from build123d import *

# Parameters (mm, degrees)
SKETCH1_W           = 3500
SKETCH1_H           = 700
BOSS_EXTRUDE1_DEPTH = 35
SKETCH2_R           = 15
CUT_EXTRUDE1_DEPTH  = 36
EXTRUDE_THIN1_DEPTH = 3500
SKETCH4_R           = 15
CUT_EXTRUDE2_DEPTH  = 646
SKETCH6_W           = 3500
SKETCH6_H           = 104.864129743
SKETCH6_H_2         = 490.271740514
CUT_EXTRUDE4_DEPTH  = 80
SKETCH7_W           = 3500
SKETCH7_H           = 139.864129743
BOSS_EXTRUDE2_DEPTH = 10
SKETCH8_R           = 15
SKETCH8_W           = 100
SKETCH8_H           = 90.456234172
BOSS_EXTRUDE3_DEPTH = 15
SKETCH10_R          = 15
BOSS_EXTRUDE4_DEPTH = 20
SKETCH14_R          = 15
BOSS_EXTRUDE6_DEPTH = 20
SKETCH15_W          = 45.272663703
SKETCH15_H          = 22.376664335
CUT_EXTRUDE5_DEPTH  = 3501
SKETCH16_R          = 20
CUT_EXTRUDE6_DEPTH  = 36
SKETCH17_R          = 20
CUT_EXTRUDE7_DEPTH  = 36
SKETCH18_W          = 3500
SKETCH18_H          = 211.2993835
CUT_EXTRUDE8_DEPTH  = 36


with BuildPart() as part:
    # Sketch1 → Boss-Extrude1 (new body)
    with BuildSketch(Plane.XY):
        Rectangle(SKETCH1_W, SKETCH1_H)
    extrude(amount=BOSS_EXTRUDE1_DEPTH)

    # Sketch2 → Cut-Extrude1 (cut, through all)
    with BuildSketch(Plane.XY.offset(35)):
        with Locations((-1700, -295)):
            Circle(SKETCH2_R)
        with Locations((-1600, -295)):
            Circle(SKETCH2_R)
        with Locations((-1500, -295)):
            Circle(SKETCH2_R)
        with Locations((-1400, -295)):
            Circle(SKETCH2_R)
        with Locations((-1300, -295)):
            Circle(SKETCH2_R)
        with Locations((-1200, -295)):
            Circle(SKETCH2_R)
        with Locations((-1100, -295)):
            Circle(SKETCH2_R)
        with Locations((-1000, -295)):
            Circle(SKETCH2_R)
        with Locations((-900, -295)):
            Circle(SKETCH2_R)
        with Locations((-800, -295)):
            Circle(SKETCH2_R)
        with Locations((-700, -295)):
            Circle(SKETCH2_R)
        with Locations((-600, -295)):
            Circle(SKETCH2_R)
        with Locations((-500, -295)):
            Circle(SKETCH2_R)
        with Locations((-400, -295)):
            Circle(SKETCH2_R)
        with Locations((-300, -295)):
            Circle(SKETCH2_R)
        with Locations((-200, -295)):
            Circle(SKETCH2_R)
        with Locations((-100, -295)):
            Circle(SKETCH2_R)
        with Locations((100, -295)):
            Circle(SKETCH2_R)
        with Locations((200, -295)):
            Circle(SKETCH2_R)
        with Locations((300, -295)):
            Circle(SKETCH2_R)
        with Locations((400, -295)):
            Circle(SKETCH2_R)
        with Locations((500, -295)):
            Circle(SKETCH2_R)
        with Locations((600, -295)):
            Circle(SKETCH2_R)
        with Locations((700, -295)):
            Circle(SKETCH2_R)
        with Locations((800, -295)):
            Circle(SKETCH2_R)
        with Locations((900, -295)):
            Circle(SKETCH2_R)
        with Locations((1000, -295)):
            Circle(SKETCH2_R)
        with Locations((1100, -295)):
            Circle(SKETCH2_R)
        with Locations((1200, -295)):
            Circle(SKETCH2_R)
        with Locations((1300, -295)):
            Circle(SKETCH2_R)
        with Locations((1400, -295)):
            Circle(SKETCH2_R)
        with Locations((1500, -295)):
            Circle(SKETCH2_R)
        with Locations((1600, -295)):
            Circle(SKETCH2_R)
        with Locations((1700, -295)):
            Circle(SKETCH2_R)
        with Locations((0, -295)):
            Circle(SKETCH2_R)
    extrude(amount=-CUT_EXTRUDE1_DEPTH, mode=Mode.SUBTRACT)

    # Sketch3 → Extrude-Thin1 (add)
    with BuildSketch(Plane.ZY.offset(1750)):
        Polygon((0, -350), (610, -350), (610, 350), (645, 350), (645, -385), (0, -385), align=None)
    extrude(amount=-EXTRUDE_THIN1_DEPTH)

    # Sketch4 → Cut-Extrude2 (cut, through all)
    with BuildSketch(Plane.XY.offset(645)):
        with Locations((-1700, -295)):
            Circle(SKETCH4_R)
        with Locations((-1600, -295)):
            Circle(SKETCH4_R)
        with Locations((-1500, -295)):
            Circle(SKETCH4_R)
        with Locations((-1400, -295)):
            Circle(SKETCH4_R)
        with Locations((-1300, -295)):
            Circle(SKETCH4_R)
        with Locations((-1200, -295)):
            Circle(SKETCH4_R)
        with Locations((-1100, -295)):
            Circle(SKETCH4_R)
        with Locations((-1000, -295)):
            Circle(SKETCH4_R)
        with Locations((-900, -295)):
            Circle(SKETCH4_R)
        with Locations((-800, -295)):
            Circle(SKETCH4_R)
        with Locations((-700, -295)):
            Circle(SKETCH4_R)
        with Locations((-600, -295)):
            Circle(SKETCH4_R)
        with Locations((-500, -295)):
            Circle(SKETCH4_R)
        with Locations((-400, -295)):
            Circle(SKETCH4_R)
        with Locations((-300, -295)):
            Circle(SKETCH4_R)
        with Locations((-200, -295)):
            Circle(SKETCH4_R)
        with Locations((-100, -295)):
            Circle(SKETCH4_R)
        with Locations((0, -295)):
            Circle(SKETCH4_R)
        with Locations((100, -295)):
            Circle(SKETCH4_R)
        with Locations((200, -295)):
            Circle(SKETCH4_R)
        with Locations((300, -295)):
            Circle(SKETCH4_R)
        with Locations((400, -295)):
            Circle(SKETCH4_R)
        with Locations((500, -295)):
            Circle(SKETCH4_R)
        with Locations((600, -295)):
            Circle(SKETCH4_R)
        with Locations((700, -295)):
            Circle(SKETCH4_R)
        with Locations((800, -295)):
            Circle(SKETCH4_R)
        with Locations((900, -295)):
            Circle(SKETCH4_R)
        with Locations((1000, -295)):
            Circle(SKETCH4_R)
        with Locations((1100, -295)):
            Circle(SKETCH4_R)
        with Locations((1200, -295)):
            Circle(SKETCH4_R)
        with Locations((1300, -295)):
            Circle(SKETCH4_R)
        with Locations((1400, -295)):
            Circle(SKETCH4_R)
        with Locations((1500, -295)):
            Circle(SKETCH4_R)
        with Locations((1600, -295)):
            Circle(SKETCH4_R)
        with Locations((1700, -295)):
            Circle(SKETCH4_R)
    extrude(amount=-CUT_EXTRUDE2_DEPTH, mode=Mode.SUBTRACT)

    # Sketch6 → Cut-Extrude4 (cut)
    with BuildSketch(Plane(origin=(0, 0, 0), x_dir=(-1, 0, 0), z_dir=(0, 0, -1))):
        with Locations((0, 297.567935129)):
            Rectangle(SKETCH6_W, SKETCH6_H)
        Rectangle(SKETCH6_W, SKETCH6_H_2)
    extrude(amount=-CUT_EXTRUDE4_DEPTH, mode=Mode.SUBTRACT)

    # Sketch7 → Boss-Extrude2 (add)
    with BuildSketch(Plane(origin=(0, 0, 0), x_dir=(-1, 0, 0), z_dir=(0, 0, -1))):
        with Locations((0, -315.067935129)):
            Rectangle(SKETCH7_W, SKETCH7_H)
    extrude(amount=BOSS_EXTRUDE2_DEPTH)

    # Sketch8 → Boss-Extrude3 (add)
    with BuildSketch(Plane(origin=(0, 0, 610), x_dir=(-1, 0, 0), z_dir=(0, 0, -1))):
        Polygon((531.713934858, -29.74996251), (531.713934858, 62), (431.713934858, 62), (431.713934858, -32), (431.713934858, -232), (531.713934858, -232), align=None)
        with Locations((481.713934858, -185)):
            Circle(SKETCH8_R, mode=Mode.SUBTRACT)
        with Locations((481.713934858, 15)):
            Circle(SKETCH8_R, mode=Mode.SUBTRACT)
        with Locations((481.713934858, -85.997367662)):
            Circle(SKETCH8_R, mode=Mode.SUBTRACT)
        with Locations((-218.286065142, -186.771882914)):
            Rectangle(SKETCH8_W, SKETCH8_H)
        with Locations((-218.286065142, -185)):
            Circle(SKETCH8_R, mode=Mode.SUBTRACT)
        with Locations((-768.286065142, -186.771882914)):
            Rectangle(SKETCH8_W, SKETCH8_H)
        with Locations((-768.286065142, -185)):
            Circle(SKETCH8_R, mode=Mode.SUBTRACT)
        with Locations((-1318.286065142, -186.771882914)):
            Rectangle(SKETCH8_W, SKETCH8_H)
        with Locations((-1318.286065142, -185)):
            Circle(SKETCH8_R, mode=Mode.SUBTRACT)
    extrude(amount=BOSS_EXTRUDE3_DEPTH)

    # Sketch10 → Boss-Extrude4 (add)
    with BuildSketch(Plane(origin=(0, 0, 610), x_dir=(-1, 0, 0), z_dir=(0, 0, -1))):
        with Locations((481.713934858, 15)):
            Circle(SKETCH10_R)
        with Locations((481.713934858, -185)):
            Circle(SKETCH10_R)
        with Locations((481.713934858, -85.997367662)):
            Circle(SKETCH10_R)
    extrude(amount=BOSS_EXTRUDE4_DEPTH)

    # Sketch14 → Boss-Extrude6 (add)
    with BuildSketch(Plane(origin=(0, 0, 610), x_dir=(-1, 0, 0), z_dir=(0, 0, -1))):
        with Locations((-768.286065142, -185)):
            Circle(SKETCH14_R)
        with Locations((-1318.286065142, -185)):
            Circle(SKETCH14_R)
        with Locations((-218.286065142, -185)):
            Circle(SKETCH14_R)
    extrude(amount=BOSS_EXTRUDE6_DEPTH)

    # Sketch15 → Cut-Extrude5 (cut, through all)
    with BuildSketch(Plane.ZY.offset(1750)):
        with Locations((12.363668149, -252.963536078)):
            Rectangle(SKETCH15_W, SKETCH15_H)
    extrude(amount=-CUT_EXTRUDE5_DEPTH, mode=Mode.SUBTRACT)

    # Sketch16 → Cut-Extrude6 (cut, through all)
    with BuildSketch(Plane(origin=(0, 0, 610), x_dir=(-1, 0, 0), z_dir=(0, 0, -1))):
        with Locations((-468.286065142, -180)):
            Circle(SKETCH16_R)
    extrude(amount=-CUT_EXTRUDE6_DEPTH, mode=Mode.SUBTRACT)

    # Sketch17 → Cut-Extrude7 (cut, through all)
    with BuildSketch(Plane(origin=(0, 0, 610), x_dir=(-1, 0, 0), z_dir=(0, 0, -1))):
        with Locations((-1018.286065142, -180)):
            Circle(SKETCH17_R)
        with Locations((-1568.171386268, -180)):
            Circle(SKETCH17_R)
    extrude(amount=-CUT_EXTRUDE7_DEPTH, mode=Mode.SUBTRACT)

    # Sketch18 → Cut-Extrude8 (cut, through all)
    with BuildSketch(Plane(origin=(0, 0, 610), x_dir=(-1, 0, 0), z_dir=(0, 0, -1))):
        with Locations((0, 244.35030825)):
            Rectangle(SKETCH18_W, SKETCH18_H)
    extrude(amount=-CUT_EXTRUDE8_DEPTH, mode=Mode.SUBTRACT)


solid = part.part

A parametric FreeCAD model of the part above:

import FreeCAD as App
import Part
import Sketcher
from FreeCAD import Vector


def add_polygon(sketch, points):
    """Adds a closed chain of lines whose ends are joined by coincident constraints."""
    first, n = sketch.GeometryCount, len(points)
    for a, b in zip(points, points[1:] + points[:1]):
        sketch.addGeometry(Part.LineSegment(App.Vector(*a, 0), App.Vector(*b, 0)), False)
    for i in range(n):
        sketch.addConstraint(Sketcher.Constraint("Coincident", first + i, 2, first + (i + 1) % n, 1))

doc = App.newDocument("Part")
body = doc.addObject("PartDesign::Body", "Body")

# Sketch on XY plane
sketch1 = body.newObject("Sketcher::SketchObject", "Sketch")
sketch1.AttachmentSupport = (doc.getObject("XY_Plane"), [""])
sketch1.MapMode = "FlatFace"
add_polygon(sketch1, [(-1750, 350), (-1750, -350), (1750, -350), (1750, 350)])  # lines 0-3
sketch1.addConstraint([
    Sketcher.Constraint("Vertical", 0),
    Sketcher.Constraint("Horizontal", 1),
    Sketcher.Constraint("Vertical", 2),
    Sketcher.Constraint("Horizontal", 3),
    Sketcher.Constraint("Symmetric", 0, 2, 2, 2, -1, 1),
    Sketcher.Constraint("DistanceX", 1, 1, 1, 2, 3500.0),
    Sketcher.Constraint("DistanceY", 0, 2, 0, 1, 700.0),
])
pad1 = body.newObject("PartDesign::Pad", "Pad")
pad1.Profile = sketch1
pad1.Length = 35

# Sketch on XY plane
sketch2 = body.newObject("Sketcher::SketchObject", "Sketch001")
sketch2.AttachmentSupport = (doc.getObject("XY_Plane"), [""])
sketch2.MapMode = "FlatFace"
sketch2.AttachmentOffset = App.Placement(Vector(0, 0, 35), App.Rotation())
sketch2.addGeometry([
    Part.Circle(Vector(-1700, -295, 0), Vector(0, 0, 1), 15),  # 0
    Part.Circle(Vector(-1600, -295, 0), Vector(0, 0, 1), 15),  # 1
    Part.Circle(Vector(-1500, -295, 0), Vector(0, 0, 1), 15),  # 2
    Part.Circle(Vector(-1400, -295, 0), Vector(0, 0, 1), 15),  # 3
    Part.Circle(Vector(-1300, -295, 0), Vector(0, 0, 1), 15),  # 4
    Part.Circle(Vector(-1200, -295, 0), Vector(0, 0, 1), 15),  # 5
    Part.Circle(Vector(-1100, -295, 0), Vector(0, 0, 1), 15),  # 6
    Part.Circle(Vector(-1000, -295, 0), Vector(0, 0, 1), 15),  # 7
    Part.Circle(Vector(-900, -295, 0), Vector(0, 0, 1), 15),  # 8
    Part.Circle(Vector(-800, -295, 0), Vector(0, 0, 1), 15),  # 9
    Part.Circle(Vector(-700, -295, 0), Vector(0, 0, 1), 15),  # 10
    Part.Circle(Vector(-600, -295, 0), Vector(0, 0, 1), 15),  # 11
    Part.Circle(Vector(-500, -295, 0), Vector(0, 0, 1), 15),  # 12
    Part.Circle(Vector(-400, -295, 0), Vector(0, 0, 1), 15),  # 13
    Part.Circle(Vector(-300, -295, 0), Vector(0, 0, 1), 15),  # 14
    Part.Circle(Vector(-200, -295, 0), Vector(0, 0, 1), 15),  # 15
    Part.Circle(Vector(-100, -295, 0), Vector(0, 0, 1), 15),  # 16
    Part.Circle(Vector(100, -295, 0), Vector(0, 0, 1), 15),  # 17
    Part.Circle(Vector(200, -295, 0), Vector(0, 0, 1), 15),  # 18
    Part.Circle(Vector(300, -295, 0), Vector(0, 0, 1), 15),  # 19
    Part.Circle(Vector(400, -295, 0), Vector(0, 0, 1), 15),  # 20
    Part.Circle(Vector(500, -295, 0), Vector(0, 0, 1), 15),  # 21
    Part.Circle(Vector(600, -295, 0), Vector(0, 0, 1), 15),  # 22
    Part.Circle(Vector(700, -295, 0), Vector(0, 0, 1), 15),  # 23
    Part.Circle(Vector(800, -295, 0), Vector(0, 0, 1), 15),  # 24
    Part.Circle(Vector(900, -295, 0), Vector(0, 0, 1), 15),  # 25
    Part.Circle(Vector(1000, -295, 0), Vector(0, 0, 1), 15),  # 26
    Part.Circle(Vector(1100, -295, 0), Vector(0, 0, 1), 15),  # 27
    Part.Circle(Vector(1200, -295, 0), Vector(0, 0, 1), 15),  # 28
    Part.Circle(Vector(1300, -295, 0), Vector(0, 0, 1), 15),  # 29
    Part.Circle(Vector(1400, -295, 0), Vector(0, 0, 1), 15),  # 30
    Part.Circle(Vector(1500, -295, 0), Vector(0, 0, 1), 15),  # 31
    Part.Circle(Vector(1600, -295, 0), Vector(0, 0, 1), 15),  # 32
    Part.Circle(Vector(1700, -295, 0), Vector(0, 0, 1), 15),  # 33
    Part.Circle(Vector(0, -295, 0), Vector(0, 0, 1), 15),  # 34
], False)
sketch2.addConstraint([
    Sketcher.Constraint("Equal", 0, 1),
    Sketcher.Constraint("Equal", 1, 2),
    Sketcher.Constraint("Equal", 2, 3),
    Sketcher.Constraint("Equal", 3, 4),
    Sketcher.Constraint("Equal", 4, 5),
    Sketcher.Constraint("Equal", 5, 6),
    Sketcher.Constraint("Equal", 6, 7),
    Sketcher.Constraint("Equal", 7, 8),
    Sketcher.Constraint("Equal", 8, 9),
    Sketcher.Constraint("Equal", 9, 10),
    Sketcher.Constraint("Equal", 10, 11),
    Sketcher.Constraint("Equal", 11, 12),
    Sketcher.Constraint("Equal", 12, 13),
    Sketcher.Constraint("Equal", 13, 14),
    Sketcher.Constraint("Equal", 14, 15),
    Sketcher.Constraint("Equal", 15, 16),
    Sketcher.Constraint("Equal", 16, 17),
    Sketcher.Constraint("Equal", 17, 18),
    Sketcher.Constraint("Equal", 18, 19),
    Sketcher.Constraint("Equal", 19, 20),
    Sketcher.Constraint("Equal", 20, 21),
    Sketcher.Constraint("Equal", 21, 22),
    Sketcher.Constraint("Equal", 22, 23),
    Sketcher.Constraint("Equal", 23, 24),
    Sketcher.Constraint("Equal", 24, 25),
    Sketcher.Constraint("Equal", 25, 26),
    Sketcher.Constraint("Equal", 26, 27),
    Sketcher.Constraint("Equal", 27, 28),
    Sketcher.Constraint("Equal", 28, 29),
    Sketcher.Constraint("Equal", 29, 30),
    Sketcher.Constraint("Equal", 30, 31),
    Sketcher.Constraint("Equal", 31, 32),
    Sketcher.Constraint("Equal", 32, 33),
    Sketcher.Constraint("Equal", 33, 34),
    Sketcher.Constraint("Symmetric", 16, 3, 17, 3, -2),
    Sketcher.Constraint("Symmetric", 15, 3, 18, 3, -2),
    Sketcher.Constraint("Symmetric", 14, 3, 19, 3, -2),
    Sketcher.Constraint("Symmetric", 13, 3, 20, 3, -2),
    Sketcher.Constraint("Symmetric", 12, 3, 21, 3, -2),
    Sketcher.Constraint("Symmetric", 11, 3, 22, 3, -2),
    Sketcher.Constraint("Symmetric", 10, 3, 23, 3, -2),
    Sketcher.Constraint("Symmetric", 9, 3, 24, 3, -2),
    Sketcher.Constraint("Symmetric", 8, 3, 25, 3, -2),
    Sketcher.Constraint("Symmetric", 7, 3, 26, 3, -2),
    Sketcher.Constraint("Symmetric", 6, 3, 27, 3, -2),
    Sketcher.Constraint("Symmetric", 5, 3, 28, 3, -2),
    Sketcher.Constraint("Symmetric", 4, 3, 29, 3, -2),
    Sketcher.Constraint("Symmetric", 3, 3, 30, 3, -2),
    Sketcher.Constraint("Symmetric", 2, 3, 31, 3, -2),
    Sketcher.Constraint("Symmetric", 1, 3, 32, 3, -2),
    Sketcher.Constraint("Symmetric", 0, 3, 33, 3, -2),
    Sketcher.Constraint("PointOnObject", 34, 3, -2),
    Sketcher.Constraint("Horizontal", 0, 3, 1, 3),
    Sketcher.Constraint("Horizontal", 1, 3, 2, 3),
    Sketcher.Constraint("Horizontal", 2, 3, 3, 3),
    Sketcher.Constraint("Horizontal", 3, 3, 4, 3),
    Sketcher.Constraint("Horizontal", 4, 3, 5, 3),
    Sketcher.Constraint("Horizontal", 5, 3, 6, 3),
    Sketcher.Constraint("Horizontal", 6, 3, 7, 3),
    Sketcher.Constraint("Horizontal", 7, 3, 8, 3),
    Sketcher.Constraint("Horizontal", 8, 3, 9, 3),
    Sketcher.Constraint("Horizontal", 9, 3, 10, 3),
    Sketcher.Constraint("Horizontal", 10, 3, 11, 3),
    Sketcher.Constraint("Horizontal", 11, 3, 12, 3),
    Sketcher.Constraint("Horizontal", 12, 3, 13, 3),
    Sketcher.Constraint("Horizontal", 13, 3, 14, 3),
    Sketcher.Constraint("Horizontal", 14, 3, 15, 3),
    Sketcher.Constraint("Horizontal", 15, 3, 16, 3),
    Sketcher.Constraint("Horizontal", 33, 3, 34, 3),
    Sketcher.Constraint("Diameter", 0, 30.0),
    Sketcher.Constraint("DistanceX", 0, 3, -1, 1, 1700.0),
    Sketcher.Constraint("DistanceY", 0, 3, -1, 1, 295.0),
    Sketcher.Constraint("DistanceX", 1, 3, -1, 1, 1600.0),
    Sketcher.Constraint("DistanceX", 2, 3, -1, 1, 1500.0),
    Sketcher.Constraint("DistanceX", 3, 3, -1, 1, 1400.0),
    Sketcher.Constraint("DistanceX", 4, 3, -1, 1, 1300.0),
    Sketcher.Constraint("DistanceX", 5, 3, -1, 1, 1200.0),
    Sketcher.Constraint("DistanceX", 6, 3, -1, 1, 1100.0),
    Sketcher.Constraint("DistanceX", 7, 3, -1, 1, 1000.0),
    Sketcher.Constraint("DistanceX", 8, 3, -1, 1, 900.0),
    Sketcher.Constraint("DistanceX", 9, 3, -1, 1, 800.0),
    Sketcher.Constraint("DistanceX", 10, 3, -1, 1, 700.0),
    Sketcher.Constraint("DistanceX", 11, 3, -1, 1, 600.0),
    Sketcher.Constraint("DistanceX", 12, 3, -1, 1, 500.0),
    Sketcher.Constraint("DistanceX", 13, 3, -1, 1, 400.0),
    Sketcher.Constraint("DistanceX", 14, 3, -1, 1, 300.0),
    Sketcher.Constraint("DistanceX", 15, 3, -1, 1, 200.0),
    Sketcher.Constraint("DistanceX", 16, 3, -1, 1, 100.0),
])
pocket1 = body.newObject("PartDesign::Pocket", "Pocket")
pocket1.Profile = sketch2
pocket1.Type = "ThroughAll"

# Sketch on YZ plane
sketch3 = body.newObject("Sketcher::SketchObject", "Sketch002")
sketch3.AttachmentSupport = (doc.getObject("YZ_Plane"), [""])
sketch3.MapMode = "FlatFace"
sketch3.AttachmentOffset = App.Placement(Vector(0, 0, -1750), App.Rotation())
add_polygon(sketch3, [(-350, 610), (-350, 0), (-385, 0), (-385, 645), (350, 645), (350, 610)])  # lines 0-5
sketch3.addConstraint([
    Sketcher.Constraint("Vertical", 0),
    Sketcher.Constraint("Horizontal", 1),
    Sketcher.Constraint("Vertical", 2),
    Sketcher.Constraint("Horizontal", 3),
    Sketcher.Constraint("Vertical", 4),
    Sketcher.Constraint("Horizontal", 5),
    Sketcher.Constraint("PointOnObject", 0, 2, -1),
    Sketcher.Constraint("Equal", 1, 4),
    Sketcher.Constraint("DistanceX", 1, 2, 1, 1, 35.0),
    Sketcher.Constraint("DistanceX", 3, 1, 3, 2, 735.0),
    Sketcher.Constraint("DistanceY", 0, 2, 0, 1, 610.0),
    Sketcher.Constraint("DistanceX", 0, 2, -1, 1, 350.0),
])
pad2 = body.newObject("PartDesign::Pad", "Pad001")
pad2.Profile = sketch3
pad2.Length = 3500

# Sketch on XY plane
sketch4 = body.newObject("Sketcher::SketchObject", "Sketch003")
sketch4.AttachmentSupport = (doc.getObject("XY_Plane"), [""])
sketch4.MapMode = "FlatFace"
sketch4.AttachmentOffset = App.Placement(Vector(0, 0, 645), App.Rotation())
sketch4.addGeometry([
    Part.Circle(Vector(-1700, -295, 0), Vector(0, 0, 1), 15),  # 0
    Part.Circle(Vector(-1600, -295, 0), Vector(0, 0, 1), 15),  # 1
    Part.Circle(Vector(-1500, -295, 0), Vector(0, 0, 1), 15),  # 2
    Part.Circle(Vector(-1400, -295, 0), Vector(0, 0, 1), 15),  # 3
    Part.Circle(Vector(-1300, -295, 0), Vector(0, 0, 1), 15),  # 4
    Part.Circle(Vector(-1200, -295, 0), Vector(0, 0, 1), 15),  # 5
    Part.Circle(Vector(-1100, -295, 0), Vector(0, 0, 1), 15),  # 6
    Part.Circle(Vector(-1000, -295, 0), Vector(0, 0, 1), 15),  # 7
    Part.Circle(Vector(-900, -295, 0), Vector(0, 0, 1), 15),  # 8
    Part.Circle(Vector(-800, -295, 0), Vector(0, 0, 1), 15),  # 9
    Part.Circle(Vector(-700, -295, 0), Vector(0, 0, 1), 15),  # 10
    Part.Circle(Vector(-600, -295, 0), Vector(0, 0, 1), 15),  # 11
    Part.Circle(Vector(-500, -295, 0), Vector(0, 0, 1), 15),  # 12
    Part.Circle(Vector(-400, -295, 0), Vector(0, 0, 1), 15),  # 13
    Part.Circle(Vector(-300, -295, 0), Vector(0, 0, 1), 15),  # 14
    Part.Circle(Vector(-200, -295, 0), Vector(0, 0, 1), 15),  # 15
    Part.Circle(Vector(-100, -295, 0), Vector(0, 0, 1), 15),  # 16
    Part.Circle(Vector(0, -295, 0), Vector(0, 0, 1), 15),  # 17
    Part.Circle(Vector(100, -295, 0), Vector(0, 0, 1), 15),  # 18
    Part.Circle(Vector(200, -295, 0), Vector(0, 0, 1), 15),  # 19
    Part.Circle(Vector(300, -295, 0), Vector(0, 0, 1), 15),  # 20
    Part.Circle(Vector(400, -295, 0), Vector(0, 0, 1), 15),  # 21
    Part.Circle(Vector(500, -295, 0), Vector(0, 0, 1), 15),  # 22
    Part.Circle(Vector(600, -295, 0), Vector(0, 0, 1), 15),  # 23
    Part.Circle(Vector(700, -295, 0), Vector(0, 0, 1), 15),  # 24
    Part.Circle(Vector(800, -295, 0), Vector(0, 0, 1), 15),  # 25
    Part.Circle(Vector(900, -295, 0), Vector(0, 0, 1), 15),  # 26
    Part.Circle(Vector(1000, -295, 0), Vector(0, 0, 1), 15),  # 27
    Part.Circle(Vector(1100, -295, 0), Vector(0, 0, 1), 15),  # 28
    Part.Circle(Vector(1200, -295, 0), Vector(0, 0, 1), 15),  # 29
    Part.Circle(Vector(1300, -295, 0), Vector(0, 0, 1), 15),  # 30
    Part.Circle(Vector(1400, -295, 0), Vector(0, 0, 1), 15),  # 31
    Part.Circle(Vector(1500, -295, 0), Vector(0, 0, 1), 15),  # 32
    Part.Circle(Vector(1600, -295, 0), Vector(0, 0, 1), 15),  # 33
    Part.Circle(Vector(1700, -295, 0), Vector(0, 0, 1), 15),  # 34
], False)
sketch4.addConstraint([
    Sketcher.Constraint("Equal", 0, 1),
    Sketcher.Constraint("Equal", 1, 2),
    Sketcher.Constraint("Equal", 2, 3),
    Sketcher.Constraint("Equal", 3, 4),
    Sketcher.Constraint("Equal", 4, 5),
    Sketcher.Constraint("Equal", 5, 6),
    Sketcher.Constraint("Equal", 6, 7),
    Sketcher.Constraint("Equal", 7, 8),
    Sketcher.Constraint("Equal", 8, 9),
    Sketcher.Constraint("Equal", 9, 10),
    Sketcher.Constraint("Equal", 10, 11),
    Sketcher.Constraint("Equal", 11, 12),
    Sketcher.Constraint("Equal", 12, 13),
    Sketcher.Constraint("Equal", 13, 14),
    Sketcher.Constraint("Equal", 14, 15),
    Sketcher.Constraint("Equal", 15, 16),
    Sketcher.Constraint("Equal", 16, 17),
    Sketcher.Constraint("Equal", 17, 18),
    Sketcher.Constraint("Equal", 18, 19),
    Sketcher.Constraint("Equal", 19, 20),
    Sketcher.Constraint("Equal", 20, 21),
    Sketcher.Constraint("Equal", 21, 22),
    Sketcher.Constraint("Equal", 22, 23),
    Sketcher.Constraint("Equal", 23, 24),
    Sketcher.Constraint("Equal", 24, 25),
    Sketcher.Constraint("Equal", 25, 26),
    Sketcher.Constraint("Equal", 26, 27),
    Sketcher.Constraint("Equal", 27, 28),
    Sketcher.Constraint("Equal", 28, 29),
    Sketcher.Constraint("Equal", 29, 30),
    Sketcher.Constraint("Equal", 30, 31),
    Sketcher.Constraint("Equal", 31, 32),
    Sketcher.Constraint("Equal", 32, 33),
    Sketcher.Constraint("Equal", 33, 34),
    Sketcher.Constraint("Symmetric", 16, 3, 18, 3, -2),
    Sketcher.Constraint("Symmetric", 15, 3, 19, 3, -2),
    Sketcher.Constraint("Symmetric", 14, 3, 20, 3, -2),
    Sketcher.Constraint("Symmetric", 13, 3, 21, 3, -2),
    Sketcher.Constraint("Symmetric", 12, 3, 22, 3, -2),
    Sketcher.Constraint("Symmetric", 11, 3, 23, 3, -2),
    Sketcher.Constraint("Symmetric", 10, 3, 24, 3, -2),
    Sketcher.Constraint("Symmetric", 9, 3, 25, 3, -2),
    Sketcher.Constraint("Symmetric", 8, 3, 26, 3, -2),
    Sketcher.Constraint("Symmetric", 7, 3, 27, 3, -2),
    Sketcher.Constraint("Symmetric", 6, 3, 28, 3, -2),
    Sketcher.Constraint("Symmetric", 5, 3, 29, 3, -2),
    Sketcher.Constraint("Symmetric", 4, 3, 30, 3, -2),
    Sketcher.Constraint("Symmetric", 3, 3, 31, 3, -2),
    Sketcher.Constraint("Symmetric", 2, 3, 32, 3, -2),
    Sketcher.Constraint("Symmetric", 1, 3, 33, 3, -2),
    Sketcher.Constraint("Symmetric", 0, 3, 34, 3, -2),
    Sketcher.Constraint("PointOnObject", 17, 3, -2),
    Sketcher.Constraint("Horizontal", 0, 3, 1, 3),
    Sketcher.Constraint("Horizontal", 1, 3, 2, 3),
    Sketcher.Constraint("Horizontal", 2, 3, 3, 3),
    Sketcher.Constraint("Horizontal", 3, 3, 4, 3),
    Sketcher.Constraint("Horizontal", 4, 3, 5, 3),
    Sketcher.Constraint("Horizontal", 5, 3, 6, 3),
    Sketcher.Constraint("Horizontal", 6, 3, 7, 3),
    Sketcher.Constraint("Horizontal", 7, 3, 8, 3),
    Sketcher.Constraint("Horizontal", 8, 3, 9, 3),
    Sketcher.Constraint("Horizontal", 9, 3, 10, 3),
    Sketcher.Constraint("Horizontal", 10, 3, 11, 3),
    Sketcher.Constraint("Horizontal", 11, 3, 12, 3),
    Sketcher.Constraint("Horizontal", 12, 3, 13, 3),
    Sketcher.Constraint("Horizontal", 13, 3, 14, 3),
    Sketcher.Constraint("Horizontal", 14, 3, 15, 3),
    Sketcher.Constraint("Horizontal", 15, 3, 16, 3),
    Sketcher.Constraint("Horizontal", 16, 3, 17, 3),
    Sketcher.Constraint("Diameter", 0, 30.0),
    Sketcher.Constraint("DistanceX", 0, 3, -1, 1, 1700.0),
    Sketcher.Constraint("DistanceY", 0, 3, -1, 1, 295.0),
    Sketcher.Constraint("DistanceX", 1, 3, -1, 1, 1600.0),
    Sketcher.Constraint("DistanceX", 2, 3, -1, 1, 1500.0),
    Sketcher.Constraint("DistanceX", 3, 3, -1, 1, 1400.0),
    Sketcher.Constraint("DistanceX", 4, 3, -1, 1, 1300.0),
    Sketcher.Constraint("DistanceX", 5, 3, -1, 1, 1200.0),
    Sketcher.Constraint("DistanceX", 6, 3, -1, 1, 1100.0),
    Sketcher.Constraint("DistanceX", 7, 3, -1, 1, 1000.0),
    Sketcher.Constraint("DistanceX", 8, 3, -1, 1, 900.0),
    Sketcher.Constraint("DistanceX", 9, 3, -1, 1, 800.0),
    Sketcher.Constraint("DistanceX", 10, 3, -1, 1, 700.0),
    Sketcher.Constraint("DistanceX", 11, 3, -1, 1, 600.0),
    Sketcher.Constraint("DistanceX", 12, 3, -1, 1, 500.0),
    Sketcher.Constraint("DistanceX", 13, 3, -1, 1, 400.0),
    Sketcher.Constraint("DistanceX", 14, 3, -1, 1, 300.0),
    Sketcher.Constraint("DistanceX", 15, 3, -1, 1, 200.0),
    Sketcher.Constraint("DistanceX", 16, 3, -1, 1, 100.0),
])
pocket2 = body.newObject("PartDesign::Pocket", "Pocket001")
pocket2.Profile = sketch4
pocket2.Type = "ThroughAll"

# Sketch on XY plane
sketch5 = body.newObject("Sketcher::SketchObject", "Sketch004")
sketch5.AttachmentSupport = (doc.getObject("XY_Plane"), [""])
sketch5.MapMode = "FlatFace"
add_polygon(sketch5, [(1750, 350), (1750, -245), (-1750, -245), (-1750, 350)])  # lines 0-3
sketch5.addConstraint([
    Sketcher.Constraint("Vertical", 0),
    Sketcher.Constraint("Horizontal", 1),
    Sketcher.Constraint("Vertical", 2),
    Sketcher.Constraint("Horizontal", 3),
    Sketcher.Constraint("DistanceX", 1, 2, 1, 1, 3500.0),
    Sketcher.Constraint("DistanceX", -1, 1, 0, 2, 1750.0),
    Sketcher.Constraint("DistanceY", -1, 1, 2, 2, 350.0),
    Sketcher.Constraint("DistanceY", 0, 2, 0, 1, 595.13587),
])
pocket3 = body.newObject("PartDesign::Pocket", "Pocket002")
pocket3.Profile = sketch5
pocket3.Length = 80
pocket3.Reversed = True

# Sketch on XY plane
sketch6 = body.newObject("Sketcher::SketchObject", "Sketch005")
sketch6.AttachmentSupport = (doc.getObject("XY_Plane"), [""])
sketch6.MapMode = "FlatFace"
add_polygon(sketch6, [(1750, -245), (1750, -385), (-1750, -385), (-1750, -245)])  # lines 0-3
sketch6.addConstraint([
    Sketcher.Constraint("Vertical", 0),
    Sketcher.Constraint("Horizontal", 1),
    Sketcher.Constraint("Vertical", 2),
    Sketcher.Constraint("Horizontal", 3),
    Sketcher.Constraint("DistanceX", 1, 2, 1, 1, 3500.0),
    Sketcher.Constraint("DistanceX", -1, 1, 0, 2, 1750.0),
    Sketcher.Constraint("DistanceY", 0, 2, -1, 1, 385.0),
    Sketcher.Constraint("DistanceY", 0, 2, 0, 1, 139.86413),
])
pad3 = body.newObject("PartDesign::Pad", "Pad002")
pad3.Profile = sketch6
pad3.Length = 10
pad3.Reversed = True

# Sketch on XY plane
sketch7 = body.newObject("Sketcher::SketchObject", "Sketch006")
sketch7.AttachmentSupport = (doc.getObject("XY_Plane"), [""])
sketch7.MapMode = "FlatFace"
sketch7.AttachmentOffset = App.Placement(Vector(0, 0, 610), App.Rotation())
add_polygon(sketch7, [(-532, 62), (-432, 62), (-432, -232), (-532, -232)])  # lines 0-3
sketch7.addGeometry(Part.Circle(Vector(-482, -185, 0), Vector(0, 0, 1), 15), False)  # 4
sketch7.addGeometry(Part.Circle(Vector(-482, -86, 0), Vector(0, 0, 1), 15), False)  # 5
sketch7.addGeometry(Part.Circle(Vector(-482, 15, 0), Vector(0, 0, 1), 15), False)  # 6
add_polygon(sketch7, [(268, -142), (268, -232), (168, -232), (168, -142)])  # lines 7-10
sketch7.addGeometry(Part.Circle(Vector(218, -185, 0), Vector(0, 0, 1), 15), False)  # 11
add_polygon(sketch7, [(818, -142), (818, -232), (718, -232), (718, -142)])  # lines 12-15
sketch7.addGeometry(Part.Circle(Vector(768, -185, 0), Vector(0, 0, 1), 15), False)  # 16
add_polygon(sketch7, [(1368, -142), (1368, -232), (1268, -232), (1268, -142)])  # lines 17-20
sketch7.addGeometry(Part.Circle(Vector(1318, -185, 0), Vector(0, 0, 1), 15), False)  # 21
sketch7.addConstraint([
    Sketcher.Constraint("Horizontal", 0),
    Sketcher.Constraint("Vertical", 1),
    Sketcher.Constraint("Horizontal", 2),
    Sketcher.Constraint("Vertical", 3),
    Sketcher.Constraint("Vertical", 7),
    Sketcher.Constraint("Horizontal", 8),
    Sketcher.Constraint("Vertical", 9),
    Sketcher.Constraint("Horizontal", 10),
    Sketcher.Constraint("Vertical", 12),
    Sketcher.Constraint("Horizontal", 13),
    Sketcher.Constraint("Vertical", 14),
    Sketcher.Constraint("Horizontal", 15),
    Sketcher.Constraint("Vertical", 17),
    Sketcher.Constraint("Horizontal", 18),
    Sketcher.Constraint("Vertical", 19),
    Sketcher.Constraint("Horizontal", 20),
    Sketcher.Constraint("Equal", 4, 5),
    Sketcher.Constraint("Equal", 5, 6),
    Sketcher.Constraint("Equal", 6, 11),
    Sketcher.Constraint("Equal", 11, 16),
    Sketcher.Constraint("Equal", 16, 21),
    Sketcher.Constraint("Horizontal", 4, 3, 11, 3),
    Sketcher.Constraint("Horizontal", 11, 3, 16, 3),
    Sketcher.Constraint("Horizontal", 16, 3, 21, 3),
    Sketcher.Constraint("Horizontal", 2, 2, 7, 2),
    Sketcher.Constraint("Horizontal", 8, 2, 12, 2),
    Sketcher.Constraint("Horizontal", 10, 2, 14, 2),
    Sketcher.Constraint("Horizontal", 13, 2, 17, 2),
    Sketcher.Constraint("Horizontal", 15, 2, 19, 2),
    Sketcher.Constraint("Vertical", 4, 3, 5, 3),
    Sketcher.Constraint("Vertical", 5, 3, 6, 3),
    Sketcher.Constraint("Equal", 2, 8),
    Sketcher.Constraint("Equal", 10, 13),
    Sketcher.Constraint("Equal", 15, 18),
    Sketcher.Constraint("Diameter", 4, 30.0),
    Sketcher.Constraint("DistanceX", 0, 1, 0, 2, 100.0),
    Sketcher.Constraint("DistanceY", 1, 2, 1, 1, 294.0),
    Sketcher.Constraint("DistanceY", 4, 3, -1, 1, 185.0),
    Sketcher.Constraint("DistanceY", -1, 1, 6, 3, 15.0),
    Sketcher.Constraint("DistanceY", -1, 1, 0, 2, 62.0),
    Sketcher.Constraint("DistanceX", 4, 3, 11, 3, 700.0),
    Sketcher.Constraint("DistanceX", 11, 3, 16, 3, 550.0),
    Sketcher.Constraint("DistanceX", 16, 3, 21, 3, 550.0),
    Sketcher.Constraint("DistanceX", 6, 3, 0, 2, 50.0),
    Sketcher.Constraint("DistanceX", 11, 3, 7, 2, 50.0),
    Sketcher.Constraint("DistanceX", 16, 3, 12, 2, 50.0),
    Sketcher.Constraint("DistanceX", 21, 3, 17, 2, 50.0),
    Sketcher.Constraint("DistanceY", 7, 2, 7, 1, 90.456234),
    Sketcher.Constraint("DistanceX", 4, 3, -1, 1, 481.713935),
    Sketcher.Constraint("DistanceY", 5, 3, -1, 1, 85.997368),
])
pad4 = body.newObject("PartDesign::Pad", "Pad003")
pad4.Profile = sketch7
pad4.Length = 15
pad4.Reversed = True

# Sketch on XY plane
sketch8 = body.newObject("Sketcher::SketchObject", "Sketch007")
sketch8.AttachmentSupport = (doc.getObject("XY_Plane"), [""])
sketch8.MapMode = "FlatFace"
sketch8.AttachmentOffset = App.Placement(Vector(0, 0, 610), App.Rotation())
sketch8.addGeometry([
    Part.Circle(Vector(-482, 15, 0), Vector(0, 0, 1), 15),
    Part.Circle(Vector(-482, -185, 0), Vector(0, 0, 1), 15),
    Part.Circle(Vector(-482, -86, 0), Vector(0, 0, 1), 15),
], False)
sketch8.addConstraint([
    Sketcher.Constraint("Equal", 0, 1),
    Sketcher.Constraint("Equal", 1, 2),
    Sketcher.Constraint("Vertical", 0, 3, 1, 3),
    Sketcher.Constraint("Vertical", 1, 3, 2, 3),
    Sketcher.Constraint("Diameter", 0, 30.0),
    Sketcher.Constraint("DistanceY", -1, 1, 0, 3, 15.0),
    Sketcher.Constraint("DistanceY", 1, 3, -1, 1, 185.0),
    Sketcher.Constraint("DistanceX", 0, 3, -1, 1, 481.713935),
    Sketcher.Constraint("DistanceY", 2, 3, -1, 1, 85.997368),
])
pad5 = body.newObject("PartDesign::Pad", "Pad004")
pad5.Profile = sketch8
pad5.Length = 20
pad5.Reversed = True

# Sketch on XY plane
sketch9 = body.newObject("Sketcher::SketchObject", "Sketch008")
sketch9.AttachmentSupport = (doc.getObject("XY_Plane"), [""])
sketch9.MapMode = "FlatFace"
sketch9.AttachmentOffset = App.Placement(Vector(0, 0, 610), App.Rotation())
sketch9.addGeometry([
    Part.Circle(Vector(768, -185, 0), Vector(0, 0, 1), 15),
    Part.Circle(Vector(1318, -185, 0), Vector(0, 0, 1), 15),
    Part.Circle(Vector(218, -185, 0), Vector(0, 0, 1), 15),
], False)
sketch9.addConstraint([
    Sketcher.Constraint("Equal", 0, 1),
    Sketcher.Constraint("Equal", 1, 2),
    Sketcher.Constraint("Horizontal", 0, 3, 1, 3),
    Sketcher.Constraint("Horizontal", 1, 3, 2, 3),
    Sketcher.Constraint("Diameter", 0, 30.0),
    Sketcher.Constraint("DistanceY", 0, 3, -1, 1, 185.0),
    Sketcher.Constraint("DistanceX", 0, 3, 1, 3, 550.0),
    Sketcher.Constraint("DistanceX", 2, 3, 0, 3, 550.0),
    Sketcher.Constraint("DistanceX", -1, 1, 0, 3, 768.286065),
])
pad6 = body.newObject("PartDesign::Pad", "Pad005")
pad6.Profile = sketch9
pad6.Length = 20
pad6.Reversed = True

# Sketch on YZ plane
sketch10 = body.newObject("Sketcher::SketchObject", "Sketch009")
sketch10.AttachmentSupport = (doc.getObject("YZ_Plane"), [""])
sketch10.MapMode = "FlatFace"
sketch10.AttachmentOffset = App.Placement(Vector(0, 0, -1750), App.Rotation())
add_polygon(sketch10, [(-242, -10), (-264, -10), (-264, 35), (-242, 35)])  # lines 0-3
sketch10.addConstraint([
    Sketcher.Constraint("Horizontal", 0),
    Sketcher.Constraint("Vertical", 1),
    Sketcher.Constraint("Horizontal", 2),
    Sketcher.Constraint("Vertical", 3),
    Sketcher.Constraint("DistanceY", -1, 1, 1, 2, 35.0),
    Sketcher.Constraint("DistanceX", 0, 2, 0, 1, 22.376664),
    Sketcher.Constraint("DistanceY", 1, 1, 1, 2, 45.272664),
    Sketcher.Constraint("DistanceX", 0, 2, -1, 1, 264.151868),
])
pocket4 = body.newObject("PartDesign::Pocket", "Pocket003")
pocket4.Profile = sketch10
pocket4.Type = "ThroughAll"
pocket4.Reversed = True

# Sketch on XY plane
sketch11 = body.newObject("Sketcher::SketchObject", "Sketch010")
sketch11.AttachmentSupport = (doc.getObject("XY_Plane"), [""])
sketch11.MapMode = "FlatFace"
sketch11.AttachmentOffset = App.Placement(Vector(0, 0, 610), App.Rotation())
sketch11.addGeometry(Part.Circle(Vector(468, -180, 0), Vector(0, 0, 1), 20), False)
sketch11.addConstraint([
    Sketcher.Constraint("Diameter", 0, 40.0),
    Sketcher.Constraint("DistanceY", 0, 3, -1, 1, 180.0),
    Sketcher.Constraint("DistanceX", -1, 1, 0, 3, 468.286065),
])
pocket5 = body.newObject("PartDesign::Pocket", "Pocket004")
pocket5.Profile = sketch11
pocket5.Type = "ThroughAll"
pocket5.Reversed = True

# Sketch on XY plane
sketch12 = body.newObject("Sketcher::SketchObject", "Sketch011")
sketch12.AttachmentSupport = (doc.getObject("XY_Plane"), [""])
sketch12.MapMode = "FlatFace"
sketch12.AttachmentOffset = App.Placement(Vector(0, 0, 610), App.Rotation())
sketch12.addGeometry([
    Part.Circle(Vector(1018, -180, 0), Vector(0, 0, 1), 20),
    Part.Circle(Vector(1568, -180, 0), Vector(0, 0, 1), 20),
], False)
sketch12.addConstraint([
    Sketcher.Constraint("Equal", 0, 1),
    Sketcher.Constraint("Horizontal", 0, 3, 1, 3),
    Sketcher.Constraint("Diameter", 0, 40.0),
    Sketcher.Constraint("DistanceY", 0, 3, -1, 1, 180.0),
    Sketcher.Constraint("DistanceX", 0, 3, 1, 3, 549.885321),
    Sketcher.Constraint("DistanceX", -1, 1, 0, 3, 1018.286065),
])
pocket6 = body.newObject("PartDesign::Pocket", "Pocket005")
pocket6.Profile = sketch12
pocket6.Type = "ThroughAll"
pocket6.Reversed = True

# Sketch on XY plane
sketch13 = body.newObject("Sketcher::SketchObject", "Sketch012")
sketch13.AttachmentSupport = (doc.getObject("XY_Plane"), [""])
sketch13.MapMode = "FlatFace"
sketch13.AttachmentOffset = App.Placement(Vector(0, 0, 610), App.Rotation())
add_polygon(sketch13, [(1750, 350), (1750, 139), (-1750, 139), (-1750, 350)])  # lines 0-3
sketch13.addConstraint([
    Sketcher.Constraint("Vertical", 0),
    Sketcher.Constraint("Horizontal", 1),
    Sketcher.Constraint("Vertical", 2),
    Sketcher.Constraint("Horizontal", 3),
    Sketcher.Constraint("DistanceX", 1, 2, 1, 1, 3500.0),
    Sketcher.Constraint("DistanceX", -1, 1, 0, 2, 1750.0),
    Sketcher.Constraint("DistanceY", -1, 1, 2, 2, 350.0),
    Sketcher.Constraint("DistanceY", 0, 2, 0, 1, 211.299384),
])
pocket7 = body.newObject("PartDesign::Pocket", "Pocket006")
pocket7.Profile = sketch13
pocket7.Type = "ThroughAll"
pocket7.Reversed = True

doc.recompute()
